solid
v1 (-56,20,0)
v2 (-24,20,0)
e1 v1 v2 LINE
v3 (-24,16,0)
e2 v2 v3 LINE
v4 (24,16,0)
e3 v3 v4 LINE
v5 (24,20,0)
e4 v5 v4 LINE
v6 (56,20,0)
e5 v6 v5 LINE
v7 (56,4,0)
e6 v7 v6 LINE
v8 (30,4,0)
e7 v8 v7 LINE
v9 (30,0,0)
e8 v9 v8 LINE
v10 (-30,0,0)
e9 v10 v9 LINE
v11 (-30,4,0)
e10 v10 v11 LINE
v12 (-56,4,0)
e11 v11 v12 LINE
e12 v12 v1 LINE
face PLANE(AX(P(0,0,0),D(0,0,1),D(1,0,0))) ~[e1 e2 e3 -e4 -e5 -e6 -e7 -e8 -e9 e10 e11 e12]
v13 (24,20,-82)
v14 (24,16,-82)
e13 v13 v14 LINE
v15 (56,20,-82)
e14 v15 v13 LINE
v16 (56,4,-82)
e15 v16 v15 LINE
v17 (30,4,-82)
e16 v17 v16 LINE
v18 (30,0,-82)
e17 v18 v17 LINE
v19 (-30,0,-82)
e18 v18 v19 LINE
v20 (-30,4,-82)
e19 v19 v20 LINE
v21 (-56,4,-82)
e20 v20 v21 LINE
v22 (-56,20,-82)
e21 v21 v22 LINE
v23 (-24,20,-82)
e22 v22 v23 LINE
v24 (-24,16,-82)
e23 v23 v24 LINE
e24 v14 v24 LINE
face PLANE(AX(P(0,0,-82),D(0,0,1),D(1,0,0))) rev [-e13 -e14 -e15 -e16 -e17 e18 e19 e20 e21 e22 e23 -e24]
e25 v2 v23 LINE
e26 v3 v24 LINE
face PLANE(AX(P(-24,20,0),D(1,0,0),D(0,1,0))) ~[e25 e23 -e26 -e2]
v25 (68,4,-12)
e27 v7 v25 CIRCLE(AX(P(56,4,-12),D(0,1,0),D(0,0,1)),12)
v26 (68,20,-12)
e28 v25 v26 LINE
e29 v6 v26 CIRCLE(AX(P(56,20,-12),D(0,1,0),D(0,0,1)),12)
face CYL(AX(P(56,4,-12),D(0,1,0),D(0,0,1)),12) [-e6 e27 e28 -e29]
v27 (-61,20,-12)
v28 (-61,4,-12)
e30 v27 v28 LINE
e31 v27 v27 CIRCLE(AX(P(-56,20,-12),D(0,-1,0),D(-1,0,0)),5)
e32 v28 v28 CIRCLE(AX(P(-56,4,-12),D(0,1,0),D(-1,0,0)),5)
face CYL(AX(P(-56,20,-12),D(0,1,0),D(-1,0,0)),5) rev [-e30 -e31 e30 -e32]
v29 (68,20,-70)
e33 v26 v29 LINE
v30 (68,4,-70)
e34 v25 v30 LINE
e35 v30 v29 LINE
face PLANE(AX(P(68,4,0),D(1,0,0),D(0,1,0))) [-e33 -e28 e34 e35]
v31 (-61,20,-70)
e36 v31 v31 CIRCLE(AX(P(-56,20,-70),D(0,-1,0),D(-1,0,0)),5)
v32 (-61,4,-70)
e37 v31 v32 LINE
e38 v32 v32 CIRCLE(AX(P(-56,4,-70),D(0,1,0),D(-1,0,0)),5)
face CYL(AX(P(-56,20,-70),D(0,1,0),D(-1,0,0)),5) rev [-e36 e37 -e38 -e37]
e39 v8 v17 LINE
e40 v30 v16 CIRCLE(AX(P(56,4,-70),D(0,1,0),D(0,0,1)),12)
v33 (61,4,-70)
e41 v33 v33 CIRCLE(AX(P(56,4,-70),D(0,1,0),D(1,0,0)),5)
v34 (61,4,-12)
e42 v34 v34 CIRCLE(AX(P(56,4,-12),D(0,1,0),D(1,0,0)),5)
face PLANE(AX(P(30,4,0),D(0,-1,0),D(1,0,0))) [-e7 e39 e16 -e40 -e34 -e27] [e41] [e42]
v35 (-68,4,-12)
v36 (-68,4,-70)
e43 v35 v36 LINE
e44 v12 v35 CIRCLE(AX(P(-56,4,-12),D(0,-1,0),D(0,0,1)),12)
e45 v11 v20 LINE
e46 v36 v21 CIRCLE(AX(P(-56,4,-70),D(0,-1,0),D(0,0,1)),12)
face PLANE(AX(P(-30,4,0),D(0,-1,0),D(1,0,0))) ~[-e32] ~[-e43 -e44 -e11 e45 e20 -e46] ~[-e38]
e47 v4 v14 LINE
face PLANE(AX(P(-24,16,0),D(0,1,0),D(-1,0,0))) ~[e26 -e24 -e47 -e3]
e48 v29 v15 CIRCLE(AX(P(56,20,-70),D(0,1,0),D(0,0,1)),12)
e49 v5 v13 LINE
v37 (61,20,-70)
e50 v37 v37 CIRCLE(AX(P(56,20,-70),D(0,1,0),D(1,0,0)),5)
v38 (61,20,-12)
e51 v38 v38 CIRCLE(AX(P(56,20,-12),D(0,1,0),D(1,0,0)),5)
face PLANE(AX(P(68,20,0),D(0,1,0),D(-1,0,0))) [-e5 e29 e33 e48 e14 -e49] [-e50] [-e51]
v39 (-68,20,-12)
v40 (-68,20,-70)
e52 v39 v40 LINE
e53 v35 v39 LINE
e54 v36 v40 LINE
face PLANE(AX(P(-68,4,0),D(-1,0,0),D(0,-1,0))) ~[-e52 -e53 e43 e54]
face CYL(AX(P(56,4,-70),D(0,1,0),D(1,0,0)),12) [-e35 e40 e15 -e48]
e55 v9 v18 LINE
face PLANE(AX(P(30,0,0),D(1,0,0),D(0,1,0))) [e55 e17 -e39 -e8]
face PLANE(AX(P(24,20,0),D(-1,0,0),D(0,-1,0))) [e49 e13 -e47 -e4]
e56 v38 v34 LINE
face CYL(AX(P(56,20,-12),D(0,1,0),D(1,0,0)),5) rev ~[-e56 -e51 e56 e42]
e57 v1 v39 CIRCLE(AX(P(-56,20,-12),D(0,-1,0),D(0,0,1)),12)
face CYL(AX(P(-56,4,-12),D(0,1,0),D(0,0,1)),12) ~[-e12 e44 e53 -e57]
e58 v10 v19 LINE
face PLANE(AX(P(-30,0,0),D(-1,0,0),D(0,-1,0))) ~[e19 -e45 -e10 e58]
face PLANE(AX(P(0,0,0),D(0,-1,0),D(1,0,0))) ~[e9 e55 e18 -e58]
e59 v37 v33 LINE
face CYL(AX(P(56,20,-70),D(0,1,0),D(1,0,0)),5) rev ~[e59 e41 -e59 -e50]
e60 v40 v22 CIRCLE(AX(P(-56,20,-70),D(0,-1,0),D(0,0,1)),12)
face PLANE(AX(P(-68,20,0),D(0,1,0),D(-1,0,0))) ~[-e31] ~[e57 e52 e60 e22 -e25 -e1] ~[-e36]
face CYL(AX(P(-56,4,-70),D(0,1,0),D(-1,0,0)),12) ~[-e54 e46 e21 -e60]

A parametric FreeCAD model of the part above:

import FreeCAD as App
import Part
import Sketcher
from FreeCAD import Vector
Q = App.Units.Quantity


def edges_at(feature, points):
    """Names of the edges that pass closest to the given points."""
    edges = feature.Shape.Edges
    near = lambda p: min(range(len(edges)), key=lambda i: edges[i].distToShape(Part.Vertex(*p))[0])
    return sorted({f"Edge{near(p) + 1}" for p in points})

doc = App.newDocument("Part")
body = doc.addObject("PartDesign::Body", "Body")

sketch1 = doc.addObject("Sketcher::SketchObject", "Sketch")
body.addObject(sketch1)
sketch1.AttachmentSupport = (doc.XY_Plane, [""])
sketch1.MapMode = "FlatFace"
sketch1.addGeometry([
    Part.LineSegment(Vector(0, 16, 0), Vector(0, 0, 0)),
    Part.LineSegment(Vector(0, 0, 0), Vector(30, 0, 0)),
    Part.LineSegment(Vector(30, 0, 0), Vector(30, 4, 0)),
    Part.LineSegment(Vector(30, 4, 0), Vector(68, 4, 0)),
    Part.LineSegment(Vector(68, 4, 0), Vector(68, 20, 0)),
    Part.LineSegment(Vector(68, 20, 0), Vector(24, 20, 0)),
    Part.LineSegment(Vector(24, 20, 0), Vector(24, 16, 0)),
    Part.LineSegment(Vector(24, 16, 0), Vector(0, 16, 0)),
], False)
sketch1.addConstraint([
    Sketcher.Constraint("Coincident", 0, 2, 1, 1),
    Sketcher.Constraint("Coincident", 1, 2, 2, 1),
    Sketcher.Constraint("Coincident", 2, 2, 3, 1),
    Sketcher.Constraint("Coincident", 3, 2, 4, 1),
    Sketcher.Constraint("Coincident", 4, 2, 5, 1),
    Sketcher.Constraint("Coincident", 5, 2, 6, 1),
    Sketcher.Constraint("Coincident", 6, 2, 7, 1),
    Sketcher.Constraint("Coincident", 7, 2, 0, 1),
    Sketcher.Constraint("Vertical", 0),
    Sketcher.Constraint("Horizontal", 1),
    Sketcher.Constraint("Vertical", 2),
    Sketcher.Constraint("Horizontal", 3),
    Sketcher.Constraint("Vertical", 4),
    Sketcher.Constraint("Horizontal", 5),
    Sketcher.Constraint("Vertical", 6),
    Sketcher.Constraint("Horizontal", 7),
    Sketcher.Constraint("Coincident", 0, 2, -1, 1),
    Sketcher.Constraint("Equal", 0, 4),
    Sketcher.Constraint("DistanceX", 1, 1, 1, 2, Q("30 mm")),
    Sketcher.Constraint("DistanceX", 3, 1, 3, 2, Q("38 mm")),
    Sketcher.Constraint("DistanceX", 5, 2, 5, 1, Q("44 mm")),
    Sketcher.Constraint("DistanceY", 0, 2, 0, 1, Q("16 mm")),
    Sketcher.Constraint("DistanceY", 2, 1, 2, 2, Q("4 mm")),
])
pad1 = doc.addObject("PartDesign::Pad", "Pad")
body.addObject(pad1)
pad1.Profile = sketch1
pad1.Length = 82
pad1.Reversed = True

sketch2 = doc.addObject("Sketcher::SketchObject", "Sketch001")
body.addObject(sketch2)
sketch2.AttachmentSupport = (doc.XZ_Plane, [""])
sketch2.MapMode = "FlatFace"
sketch2.AttachmentOffset = App.Placement(Vector(0, 0, -20), App.Rotation())
sketch2.addGeometry(Part.Circle(Vector(56, -12, 0), Vector(0, 0, 1), 5), False)
sketch2.addConstraint([
    Sketcher.Constraint("Diameter", 0, Q("10 mm")),
    Sketcher.Constraint("DistanceY", 0, 3, -1, 1, Q("12 mm")),
    Sketcher.Constraint("DistanceX", -1, 1, 0, 3, Q("56 mm")),
])
pocket1 = doc.addObject("PartDesign::Pocket", "Pocket")
body.addObject(pocket1)
pocket1.Profile = sketch2
pocket1.Length = 82
pocket1.Reversed = True

sketch3 = doc.addObject("Sketcher::SketchObject", "Sketch002")
body.addObject(sketch3)
sketch3.AttachmentSupport = (doc.XZ_Plane, [""])
sketch3.MapMode = "FlatFace"
sketch3.AttachmentOffset = App.Placement(Vector(0, 0, -20), App.Rotation())
sketch3.addGeometry(Part.Circle(Vector(56, -70, 0), Vector(0, 0, 1), 5), False)
sketch3.addConstraint([
    Sketcher.Constraint("Diameter", 0, Q("10 mm")),
    Sketcher.Constraint("DistanceX", -1, 1, 0, 3, Q("56 mm")),
    Sketcher.Constraint("DistanceY", 0, 3, -1, 1, Q("70 mm")),
])
pocket2 = doc.addObject("PartDesign::Pocket", "Pocket001")
body.addObject(pocket2)
pocket2.Profile = sketch3
pocket2.Length = 82
pocket2.Reversed = True
doc.recompute()

fillet = doc.addObject("PartDesign::Fillet", "Fillet")
body.addObject(fillet)
fillet.Base = (pocket2, edges_at(pocket2, [(68, 12, 0)]))
fillet.Radius = 12
doc.recompute()

fillet2 = doc.addObject("PartDesign::Fillet", "Fillet001")
body.addObject(fillet2)
fillet2.Base = (fillet, edges_at(fillet, [(68, 12, -82)]))
fillet2.Radius = 12
doc.recompute()

mirrored = doc.addObject("PartDesign::Mirrored", "Mirrored")
body.addObject(mirrored)
mirrored.Originals = [pad1, fillet, pocket1, pocket2, fillet2]
mirrored.MirrorPlane = (doc.YZ_Plane, [""])
body.Tip = mirrored

doc.recompute()
